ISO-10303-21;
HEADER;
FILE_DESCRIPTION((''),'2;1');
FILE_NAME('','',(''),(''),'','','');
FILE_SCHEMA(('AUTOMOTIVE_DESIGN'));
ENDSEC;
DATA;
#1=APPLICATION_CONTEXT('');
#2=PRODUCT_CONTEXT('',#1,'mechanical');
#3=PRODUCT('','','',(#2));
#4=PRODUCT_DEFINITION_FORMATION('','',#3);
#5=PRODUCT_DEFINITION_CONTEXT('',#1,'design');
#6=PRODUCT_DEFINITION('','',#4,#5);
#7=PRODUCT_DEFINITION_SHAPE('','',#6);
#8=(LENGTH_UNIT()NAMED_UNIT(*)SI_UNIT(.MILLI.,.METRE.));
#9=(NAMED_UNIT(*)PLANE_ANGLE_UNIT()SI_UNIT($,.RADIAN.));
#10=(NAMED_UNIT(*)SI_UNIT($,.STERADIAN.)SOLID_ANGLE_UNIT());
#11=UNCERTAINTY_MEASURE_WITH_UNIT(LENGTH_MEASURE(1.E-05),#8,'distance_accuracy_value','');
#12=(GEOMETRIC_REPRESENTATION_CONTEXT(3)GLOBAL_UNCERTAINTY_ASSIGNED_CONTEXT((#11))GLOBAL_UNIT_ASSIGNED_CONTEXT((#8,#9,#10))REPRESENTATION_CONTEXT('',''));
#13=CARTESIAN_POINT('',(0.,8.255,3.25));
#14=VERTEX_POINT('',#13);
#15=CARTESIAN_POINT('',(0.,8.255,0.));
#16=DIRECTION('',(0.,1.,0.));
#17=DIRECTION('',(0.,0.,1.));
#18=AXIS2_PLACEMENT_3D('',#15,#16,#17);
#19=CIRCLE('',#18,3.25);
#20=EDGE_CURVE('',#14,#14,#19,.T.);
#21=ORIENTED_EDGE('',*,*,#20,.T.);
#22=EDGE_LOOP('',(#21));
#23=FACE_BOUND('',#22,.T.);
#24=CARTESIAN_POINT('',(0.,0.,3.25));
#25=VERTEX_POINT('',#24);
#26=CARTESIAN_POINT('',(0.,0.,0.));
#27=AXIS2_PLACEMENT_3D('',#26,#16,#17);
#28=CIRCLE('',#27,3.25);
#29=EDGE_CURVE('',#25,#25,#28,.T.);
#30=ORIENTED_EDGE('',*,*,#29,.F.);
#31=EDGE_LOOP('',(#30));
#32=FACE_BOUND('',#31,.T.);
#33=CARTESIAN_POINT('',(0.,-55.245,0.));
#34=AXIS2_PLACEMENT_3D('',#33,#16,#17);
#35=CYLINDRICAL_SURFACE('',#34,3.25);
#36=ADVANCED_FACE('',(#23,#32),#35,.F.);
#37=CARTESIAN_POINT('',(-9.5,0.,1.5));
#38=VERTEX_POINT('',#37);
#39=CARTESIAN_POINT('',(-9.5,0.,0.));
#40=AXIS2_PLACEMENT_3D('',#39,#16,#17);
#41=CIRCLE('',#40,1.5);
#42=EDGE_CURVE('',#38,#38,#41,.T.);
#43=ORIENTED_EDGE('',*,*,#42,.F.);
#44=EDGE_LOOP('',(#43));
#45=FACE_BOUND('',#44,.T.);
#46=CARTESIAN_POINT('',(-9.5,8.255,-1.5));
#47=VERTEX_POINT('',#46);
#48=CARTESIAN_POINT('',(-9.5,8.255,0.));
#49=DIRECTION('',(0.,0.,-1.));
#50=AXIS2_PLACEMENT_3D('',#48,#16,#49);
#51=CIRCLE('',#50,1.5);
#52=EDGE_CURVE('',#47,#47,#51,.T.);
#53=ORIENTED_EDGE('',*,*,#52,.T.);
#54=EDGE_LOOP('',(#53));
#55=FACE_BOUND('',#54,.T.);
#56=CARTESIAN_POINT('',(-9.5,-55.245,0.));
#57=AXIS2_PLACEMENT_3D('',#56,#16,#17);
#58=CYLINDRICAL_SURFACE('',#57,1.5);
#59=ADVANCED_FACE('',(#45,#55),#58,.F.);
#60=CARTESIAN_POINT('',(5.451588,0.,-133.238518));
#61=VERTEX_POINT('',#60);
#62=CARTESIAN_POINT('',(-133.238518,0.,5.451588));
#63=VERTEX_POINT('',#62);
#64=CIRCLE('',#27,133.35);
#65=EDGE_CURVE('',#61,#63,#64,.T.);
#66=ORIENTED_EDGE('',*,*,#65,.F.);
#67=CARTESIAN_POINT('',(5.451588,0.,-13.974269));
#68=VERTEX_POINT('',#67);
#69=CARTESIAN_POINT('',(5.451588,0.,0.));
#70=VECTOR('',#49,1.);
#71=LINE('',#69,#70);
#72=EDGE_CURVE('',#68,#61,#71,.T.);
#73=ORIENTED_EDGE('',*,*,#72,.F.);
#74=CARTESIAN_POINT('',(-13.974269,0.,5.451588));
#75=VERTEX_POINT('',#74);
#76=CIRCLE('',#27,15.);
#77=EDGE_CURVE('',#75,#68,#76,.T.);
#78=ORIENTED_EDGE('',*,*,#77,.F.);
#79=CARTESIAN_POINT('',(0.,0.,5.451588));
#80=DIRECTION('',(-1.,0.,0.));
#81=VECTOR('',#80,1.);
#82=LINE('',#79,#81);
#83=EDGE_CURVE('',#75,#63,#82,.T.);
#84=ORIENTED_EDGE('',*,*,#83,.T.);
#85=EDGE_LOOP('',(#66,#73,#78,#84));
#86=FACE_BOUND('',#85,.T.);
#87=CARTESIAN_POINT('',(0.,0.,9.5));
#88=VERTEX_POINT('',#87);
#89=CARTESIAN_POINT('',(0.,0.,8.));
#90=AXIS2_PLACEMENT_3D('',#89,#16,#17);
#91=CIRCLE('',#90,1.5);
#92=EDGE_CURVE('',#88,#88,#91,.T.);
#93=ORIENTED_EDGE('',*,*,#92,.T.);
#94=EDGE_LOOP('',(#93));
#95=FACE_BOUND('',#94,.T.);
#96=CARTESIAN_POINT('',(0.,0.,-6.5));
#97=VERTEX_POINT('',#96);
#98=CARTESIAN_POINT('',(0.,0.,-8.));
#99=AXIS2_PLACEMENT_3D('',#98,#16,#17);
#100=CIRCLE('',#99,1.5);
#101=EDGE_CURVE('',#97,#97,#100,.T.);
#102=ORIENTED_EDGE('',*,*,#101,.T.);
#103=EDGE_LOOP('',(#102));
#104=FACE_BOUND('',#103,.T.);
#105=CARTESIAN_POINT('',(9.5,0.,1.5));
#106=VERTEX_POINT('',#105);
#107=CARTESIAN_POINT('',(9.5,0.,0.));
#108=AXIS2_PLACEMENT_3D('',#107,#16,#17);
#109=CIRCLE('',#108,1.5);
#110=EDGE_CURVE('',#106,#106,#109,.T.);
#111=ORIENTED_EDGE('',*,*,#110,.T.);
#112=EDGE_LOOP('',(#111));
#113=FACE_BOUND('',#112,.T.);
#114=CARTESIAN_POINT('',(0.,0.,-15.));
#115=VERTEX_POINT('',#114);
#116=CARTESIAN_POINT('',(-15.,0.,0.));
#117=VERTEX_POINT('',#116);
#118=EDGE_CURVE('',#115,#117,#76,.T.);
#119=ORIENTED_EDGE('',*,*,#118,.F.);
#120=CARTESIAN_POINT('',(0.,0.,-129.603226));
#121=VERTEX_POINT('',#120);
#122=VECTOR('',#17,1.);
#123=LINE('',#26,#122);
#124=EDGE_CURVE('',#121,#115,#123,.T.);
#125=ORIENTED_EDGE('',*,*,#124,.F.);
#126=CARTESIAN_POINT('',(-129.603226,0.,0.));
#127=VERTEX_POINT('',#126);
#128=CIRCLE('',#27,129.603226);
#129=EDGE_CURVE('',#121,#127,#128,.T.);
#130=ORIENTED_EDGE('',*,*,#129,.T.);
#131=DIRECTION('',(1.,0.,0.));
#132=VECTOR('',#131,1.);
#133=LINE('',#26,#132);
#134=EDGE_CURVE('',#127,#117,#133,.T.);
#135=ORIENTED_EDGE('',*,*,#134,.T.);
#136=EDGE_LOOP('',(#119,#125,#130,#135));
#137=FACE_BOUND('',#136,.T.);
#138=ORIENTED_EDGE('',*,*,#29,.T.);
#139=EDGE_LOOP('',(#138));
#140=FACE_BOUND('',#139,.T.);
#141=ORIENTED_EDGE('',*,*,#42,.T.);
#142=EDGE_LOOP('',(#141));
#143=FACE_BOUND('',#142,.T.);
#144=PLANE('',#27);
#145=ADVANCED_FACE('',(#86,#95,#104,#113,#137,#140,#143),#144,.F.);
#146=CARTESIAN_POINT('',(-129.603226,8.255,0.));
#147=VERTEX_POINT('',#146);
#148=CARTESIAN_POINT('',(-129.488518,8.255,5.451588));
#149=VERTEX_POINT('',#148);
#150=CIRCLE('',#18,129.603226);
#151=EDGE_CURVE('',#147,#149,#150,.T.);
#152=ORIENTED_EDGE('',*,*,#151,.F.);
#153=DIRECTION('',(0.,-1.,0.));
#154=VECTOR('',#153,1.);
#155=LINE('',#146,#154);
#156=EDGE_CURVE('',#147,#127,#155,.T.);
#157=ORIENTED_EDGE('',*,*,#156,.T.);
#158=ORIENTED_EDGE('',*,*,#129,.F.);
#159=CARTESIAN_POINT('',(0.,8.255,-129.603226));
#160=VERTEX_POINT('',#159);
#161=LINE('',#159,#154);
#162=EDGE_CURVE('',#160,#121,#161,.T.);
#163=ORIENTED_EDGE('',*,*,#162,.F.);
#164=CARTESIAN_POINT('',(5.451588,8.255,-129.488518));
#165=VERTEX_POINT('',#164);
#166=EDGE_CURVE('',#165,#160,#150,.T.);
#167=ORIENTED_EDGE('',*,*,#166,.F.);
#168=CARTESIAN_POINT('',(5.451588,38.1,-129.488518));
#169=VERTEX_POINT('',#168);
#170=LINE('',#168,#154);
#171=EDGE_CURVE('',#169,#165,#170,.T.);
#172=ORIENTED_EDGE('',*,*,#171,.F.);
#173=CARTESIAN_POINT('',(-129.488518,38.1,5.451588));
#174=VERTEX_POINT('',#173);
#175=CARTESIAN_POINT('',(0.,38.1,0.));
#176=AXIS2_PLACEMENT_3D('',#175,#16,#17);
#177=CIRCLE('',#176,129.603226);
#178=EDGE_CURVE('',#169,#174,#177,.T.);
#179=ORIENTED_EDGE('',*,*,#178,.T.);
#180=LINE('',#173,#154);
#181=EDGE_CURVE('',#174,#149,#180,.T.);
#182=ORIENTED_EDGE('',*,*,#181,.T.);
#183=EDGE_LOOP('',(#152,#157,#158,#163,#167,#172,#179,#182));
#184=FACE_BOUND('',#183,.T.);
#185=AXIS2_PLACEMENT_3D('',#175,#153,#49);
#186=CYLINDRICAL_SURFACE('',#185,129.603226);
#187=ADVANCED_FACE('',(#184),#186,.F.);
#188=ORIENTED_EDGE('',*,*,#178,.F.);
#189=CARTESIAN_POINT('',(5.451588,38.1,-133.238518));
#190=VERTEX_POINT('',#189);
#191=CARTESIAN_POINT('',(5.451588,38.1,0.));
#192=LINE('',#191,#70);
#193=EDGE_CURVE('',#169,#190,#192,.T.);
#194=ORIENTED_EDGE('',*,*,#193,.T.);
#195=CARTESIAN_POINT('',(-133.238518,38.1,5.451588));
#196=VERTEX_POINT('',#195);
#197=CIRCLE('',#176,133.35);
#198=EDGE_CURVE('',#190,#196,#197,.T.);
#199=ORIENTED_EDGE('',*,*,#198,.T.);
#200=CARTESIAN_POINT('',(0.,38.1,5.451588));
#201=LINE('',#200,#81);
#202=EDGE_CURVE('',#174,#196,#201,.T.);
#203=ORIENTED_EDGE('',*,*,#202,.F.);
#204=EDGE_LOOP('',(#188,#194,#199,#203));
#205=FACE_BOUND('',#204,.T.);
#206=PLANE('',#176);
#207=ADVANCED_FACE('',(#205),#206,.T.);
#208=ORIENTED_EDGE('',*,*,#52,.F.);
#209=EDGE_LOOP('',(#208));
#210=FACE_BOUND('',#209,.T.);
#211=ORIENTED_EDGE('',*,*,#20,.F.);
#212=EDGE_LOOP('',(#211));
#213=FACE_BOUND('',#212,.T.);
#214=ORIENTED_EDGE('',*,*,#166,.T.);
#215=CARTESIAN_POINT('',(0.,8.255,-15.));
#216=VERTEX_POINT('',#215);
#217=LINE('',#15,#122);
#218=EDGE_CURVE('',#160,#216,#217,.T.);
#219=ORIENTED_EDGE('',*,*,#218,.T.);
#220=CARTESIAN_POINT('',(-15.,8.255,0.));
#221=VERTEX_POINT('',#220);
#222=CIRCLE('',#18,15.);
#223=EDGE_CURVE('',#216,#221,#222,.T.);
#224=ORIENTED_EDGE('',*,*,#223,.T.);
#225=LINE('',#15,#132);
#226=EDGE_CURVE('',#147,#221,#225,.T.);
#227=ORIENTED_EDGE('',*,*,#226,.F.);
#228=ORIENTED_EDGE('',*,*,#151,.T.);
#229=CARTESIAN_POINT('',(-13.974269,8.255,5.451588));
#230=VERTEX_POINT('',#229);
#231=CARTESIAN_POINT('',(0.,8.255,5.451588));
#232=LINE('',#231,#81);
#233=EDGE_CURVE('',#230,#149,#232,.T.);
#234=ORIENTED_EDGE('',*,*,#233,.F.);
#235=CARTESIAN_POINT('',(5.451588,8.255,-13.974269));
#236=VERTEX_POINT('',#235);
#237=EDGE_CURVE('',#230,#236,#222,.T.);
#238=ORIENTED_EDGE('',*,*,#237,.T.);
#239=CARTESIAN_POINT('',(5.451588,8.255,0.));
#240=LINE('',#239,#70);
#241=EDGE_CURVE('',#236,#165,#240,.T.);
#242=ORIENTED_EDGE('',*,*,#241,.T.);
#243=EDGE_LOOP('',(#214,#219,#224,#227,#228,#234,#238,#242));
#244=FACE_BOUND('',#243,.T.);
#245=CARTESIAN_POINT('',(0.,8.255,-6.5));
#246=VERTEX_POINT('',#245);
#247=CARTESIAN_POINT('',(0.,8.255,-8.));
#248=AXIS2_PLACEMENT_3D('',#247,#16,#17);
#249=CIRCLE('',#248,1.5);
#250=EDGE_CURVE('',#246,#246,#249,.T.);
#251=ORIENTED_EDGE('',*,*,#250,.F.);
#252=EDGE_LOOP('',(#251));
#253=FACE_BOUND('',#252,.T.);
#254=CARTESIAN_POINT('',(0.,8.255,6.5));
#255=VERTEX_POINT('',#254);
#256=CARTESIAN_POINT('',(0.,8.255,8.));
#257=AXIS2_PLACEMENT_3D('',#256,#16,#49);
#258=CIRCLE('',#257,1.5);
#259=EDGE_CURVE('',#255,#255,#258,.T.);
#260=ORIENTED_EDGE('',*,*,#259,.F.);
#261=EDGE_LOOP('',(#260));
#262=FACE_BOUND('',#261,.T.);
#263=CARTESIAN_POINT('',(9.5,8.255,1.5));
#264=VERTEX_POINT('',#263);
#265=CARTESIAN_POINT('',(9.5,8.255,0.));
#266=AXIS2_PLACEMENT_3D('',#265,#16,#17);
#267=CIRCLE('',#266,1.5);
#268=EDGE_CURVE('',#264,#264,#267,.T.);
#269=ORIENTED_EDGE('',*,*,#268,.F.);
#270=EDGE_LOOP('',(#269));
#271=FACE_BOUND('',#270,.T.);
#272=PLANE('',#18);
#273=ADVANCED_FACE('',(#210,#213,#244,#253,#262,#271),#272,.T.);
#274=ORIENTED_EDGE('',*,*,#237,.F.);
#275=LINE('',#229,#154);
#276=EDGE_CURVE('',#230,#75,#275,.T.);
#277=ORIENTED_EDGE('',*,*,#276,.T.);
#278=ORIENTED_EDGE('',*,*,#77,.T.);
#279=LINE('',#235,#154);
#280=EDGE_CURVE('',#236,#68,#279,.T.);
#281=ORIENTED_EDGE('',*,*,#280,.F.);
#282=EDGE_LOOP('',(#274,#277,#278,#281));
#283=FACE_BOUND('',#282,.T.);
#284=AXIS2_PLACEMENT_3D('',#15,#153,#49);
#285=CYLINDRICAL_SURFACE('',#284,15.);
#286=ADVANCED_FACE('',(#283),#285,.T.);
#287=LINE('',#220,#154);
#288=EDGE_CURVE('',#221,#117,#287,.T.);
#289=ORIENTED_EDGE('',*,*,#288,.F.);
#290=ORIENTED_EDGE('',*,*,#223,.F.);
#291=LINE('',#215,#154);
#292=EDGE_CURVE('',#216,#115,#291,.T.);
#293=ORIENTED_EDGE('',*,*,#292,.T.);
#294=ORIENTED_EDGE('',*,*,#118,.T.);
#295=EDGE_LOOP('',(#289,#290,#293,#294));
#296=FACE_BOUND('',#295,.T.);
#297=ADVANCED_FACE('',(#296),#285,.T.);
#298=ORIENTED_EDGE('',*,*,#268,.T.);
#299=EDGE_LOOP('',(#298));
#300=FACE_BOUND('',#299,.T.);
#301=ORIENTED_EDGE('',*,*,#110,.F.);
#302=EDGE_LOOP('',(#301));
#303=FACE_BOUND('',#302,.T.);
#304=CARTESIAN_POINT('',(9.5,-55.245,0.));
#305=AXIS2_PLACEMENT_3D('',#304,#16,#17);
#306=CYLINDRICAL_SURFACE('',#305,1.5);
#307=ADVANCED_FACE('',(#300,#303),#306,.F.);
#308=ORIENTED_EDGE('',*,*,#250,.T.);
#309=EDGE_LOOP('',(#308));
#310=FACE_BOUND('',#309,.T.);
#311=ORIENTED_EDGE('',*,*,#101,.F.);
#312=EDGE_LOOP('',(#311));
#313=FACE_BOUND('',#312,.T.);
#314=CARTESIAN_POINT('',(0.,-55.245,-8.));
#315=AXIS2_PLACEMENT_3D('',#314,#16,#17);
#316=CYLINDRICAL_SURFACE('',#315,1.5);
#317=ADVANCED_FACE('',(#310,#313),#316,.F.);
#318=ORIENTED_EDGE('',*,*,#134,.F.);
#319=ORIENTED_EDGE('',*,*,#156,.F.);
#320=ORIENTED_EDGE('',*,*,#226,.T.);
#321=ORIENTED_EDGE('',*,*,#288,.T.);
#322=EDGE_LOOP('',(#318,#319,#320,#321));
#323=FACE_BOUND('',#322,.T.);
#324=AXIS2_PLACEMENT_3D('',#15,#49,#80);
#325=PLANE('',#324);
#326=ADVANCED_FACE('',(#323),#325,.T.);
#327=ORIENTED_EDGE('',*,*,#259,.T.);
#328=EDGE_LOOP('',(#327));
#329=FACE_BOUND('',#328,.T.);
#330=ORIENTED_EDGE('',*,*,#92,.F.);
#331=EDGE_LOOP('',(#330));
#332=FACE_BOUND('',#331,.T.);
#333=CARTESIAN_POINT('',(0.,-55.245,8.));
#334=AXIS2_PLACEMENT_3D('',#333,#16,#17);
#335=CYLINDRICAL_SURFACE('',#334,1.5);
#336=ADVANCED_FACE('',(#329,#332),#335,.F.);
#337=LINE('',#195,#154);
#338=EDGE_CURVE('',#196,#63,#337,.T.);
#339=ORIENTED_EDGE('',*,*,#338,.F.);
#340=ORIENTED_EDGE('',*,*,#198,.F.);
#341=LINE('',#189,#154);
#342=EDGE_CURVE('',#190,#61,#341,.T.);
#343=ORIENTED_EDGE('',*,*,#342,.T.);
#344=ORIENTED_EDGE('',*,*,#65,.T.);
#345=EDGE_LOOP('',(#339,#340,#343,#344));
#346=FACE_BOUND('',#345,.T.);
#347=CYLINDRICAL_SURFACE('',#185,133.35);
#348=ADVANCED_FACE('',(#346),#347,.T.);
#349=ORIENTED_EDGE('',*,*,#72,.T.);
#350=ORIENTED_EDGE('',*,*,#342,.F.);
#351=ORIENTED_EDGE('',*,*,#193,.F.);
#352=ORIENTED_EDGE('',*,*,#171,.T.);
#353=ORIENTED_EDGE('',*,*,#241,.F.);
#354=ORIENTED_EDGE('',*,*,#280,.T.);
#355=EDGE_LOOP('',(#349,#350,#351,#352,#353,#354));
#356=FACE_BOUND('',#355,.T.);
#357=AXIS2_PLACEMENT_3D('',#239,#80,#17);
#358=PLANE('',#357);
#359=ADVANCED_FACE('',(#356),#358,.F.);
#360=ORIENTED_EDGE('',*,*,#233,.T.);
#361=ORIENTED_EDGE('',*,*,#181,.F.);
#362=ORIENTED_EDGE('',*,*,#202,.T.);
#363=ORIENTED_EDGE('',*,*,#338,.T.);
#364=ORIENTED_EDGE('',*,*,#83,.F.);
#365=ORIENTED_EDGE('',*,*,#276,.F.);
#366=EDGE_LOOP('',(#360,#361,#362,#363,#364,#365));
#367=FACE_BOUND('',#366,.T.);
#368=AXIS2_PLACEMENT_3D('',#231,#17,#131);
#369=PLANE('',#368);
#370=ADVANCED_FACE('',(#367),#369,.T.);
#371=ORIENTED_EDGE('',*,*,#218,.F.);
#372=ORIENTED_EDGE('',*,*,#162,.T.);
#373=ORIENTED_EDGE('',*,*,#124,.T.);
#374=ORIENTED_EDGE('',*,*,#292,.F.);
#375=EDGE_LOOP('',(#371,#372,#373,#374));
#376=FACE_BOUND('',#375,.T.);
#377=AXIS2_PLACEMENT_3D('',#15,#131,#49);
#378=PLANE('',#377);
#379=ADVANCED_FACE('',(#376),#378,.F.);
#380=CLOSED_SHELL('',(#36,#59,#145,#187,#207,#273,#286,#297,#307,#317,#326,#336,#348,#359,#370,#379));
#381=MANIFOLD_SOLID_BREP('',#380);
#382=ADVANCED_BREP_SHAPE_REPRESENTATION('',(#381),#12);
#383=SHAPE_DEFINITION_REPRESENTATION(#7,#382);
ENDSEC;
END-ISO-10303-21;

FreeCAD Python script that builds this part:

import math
import FreeCAD as App
import Part
import Sketcher
Q = App.Units.Quantity

doc = App.newDocument("Part")
body = doc.addObject("PartDesign::Body", "Body")

sketch1 = body.newObject("Sketcher::SketchObject", "Sketch")
sketch1.AttachmentSupport = (doc.getObject("XZ_Plane"), [""])
sketch1.MapMode = "FlatFace"
sketch1.addGeometry(Part.Circle(App.Vector(0, 0, 0), App.Vector(0, 0, 1), 15), False)
sketch1.addConstraint(Sketcher.Constraint("Coincident", 0, 3, -1, 1))
sketch1.addConstraint(Sketcher.Constraint("Diameter", 0, Q("30 mm")))
pad1 = body.newObject("PartDesign::Pad", "Pad")
pad1.Profile = sketch1
pad1.Length = Q("0.325 in")
pad1.Reversed = True

sketch2 = body.newObject("Sketcher::SketchObject", "Sketch001")
sketch2.AttachmentSupport = (doc.getObject("XZ_Plane"), [""])
sketch2.MapMode = "FlatFace"
sketch2.addGeometry(Part.LineSegment(App.Vector(-15, 0, 0), App.Vector(-130, 0, 0)), False)
sketch2.addGeometry(Part.ArcOfCircle(Part.Circle(App.Vector(0, 0, 0), App.Vector(0, 0, 1), 130), math.radians(177.59), math.radians(180)), False)
sketch2.addGeometry(Part.LineSegment(App.Vector(-129, 5, 0), App.Vector(-14, 5, 0)), False)
sketch2.addGeometry(Part.ArcOfCircle(Part.Circle(App.Vector(0, 0, 0), App.Vector(0, 0, 1), 15), math.radians(159), math.radians(180)), False)
sketch2.addGeometry(Part.ArcOfCircle(Part.Circle(App.Vector(0, 0, 0), App.Vector(0, 0, 1), 130), math.radians(-90), math.radians(-87.59)), False)
sketch2.addGeometry(Part.LineSegment(App.Vector(0, -130, 0), App.Vector(0, -15, 0)), False)
sketch2.addGeometry(Part.ArcOfCircle(Part.Circle(App.Vector(0, 0, 0), App.Vector(0, 0, 1), 15), math.radians(-90), math.radians(-69)), False)
sketch2.addGeometry(Part.LineSegment(App.Vector(5, -14, 0), App.Vector(5, -129, 0)), False)
sketch2.addConstraint(Sketcher.Constraint("Coincident", 0, 2, 1, 2))
sketch2.addConstraint(Sketcher.Constraint("Coincident", 1, 1, 2, 1))
sketch2.addConstraint(Sketcher.Constraint("Coincident", 2, 2, 3, 1))
sketch2.addConstraint(Sketcher.Constraint("Coincident", 3, 2, 0, 1))
sketch2.addConstraint(Sketcher.Constraint("Coincident", 4, 1, 5, 1))
sketch2.addConstraint(Sketcher.Constraint("Coincident", 5, 2, 6, 1))
sketch2.addConstraint(Sketcher.Constraint("Coincident", 6, 2, 7, 1))
sketch2.addConstraint(Sketcher.Constraint("Coincident", 7, 2, 4, 2))
sketch2.addConstraint(Sketcher.Constraint("Horizontal", 0))
sketch2.addConstraint(Sketcher.Constraint("Horizontal", 2))
sketch2.addConstraint(Sketcher.Constraint("Vertical", 5))
sketch2.addConstraint(Sketcher.Constraint("Vertical", 7))
sketch2.addConstraint(Sketcher.Constraint("Coincident", 1, 3, -1, 1))
sketch2.addConstraint(Sketcher.Constraint("Coincident", 3, 3, -1, 1))
sketch2.addConstraint(Sketcher.Constraint("Coincident", 4, 3, -1, 1))
sketch2.addConstraint(Sketcher.Constraint("Coincident", 6, 3, -1, 1))
sketch2.addConstraint(Sketcher.Constraint("Equal", 1, 4))
sketch2.addConstraint(Sketcher.Constraint("Equal", 3, 6))
sketch2.addConstraint(Sketcher.Constraint("PointOnObject", 0, 2, -1))
sketch2.addConstraint(Sketcher.Constraint("PointOnObject", 4, 1, -2))
sketch2.addConstraint(Sketcher.Constraint("Equal", 2, 7))
sketch2.addConstraint(Sketcher.Constraint("Radius", 3, Q("15 mm")))
sketch2.addConstraint(Sketcher.Constraint("Radius", 1, Q("129.603226 mm")))
sketch2.addConstraint(Sketcher.Constraint("DistanceX", 2, 1, 2, 2, Q("115.514249 mm")))
pad2 = body.newObject("PartDesign::Pad", "Pad001")
pad2.Profile = sketch2
pad2.Length = Q("0.325 in")
pad2.Reversed = True

sketch3 = body.newObject("Sketcher::SketchObject", "Sketch002")
sketch3.AttachmentSupport = (doc.getObject("XZ_Plane"), [""])
sketch3.MapMode = "FlatFace"
sketch3.addGeometry(Part.LineSegment(App.Vector(5.5, -129.5, 0), App.Vector(5.5, -133.2, 0)), False)
sketch3.addGeometry(Part.ArcOfCircle(Part.Circle(App.Vector(0, 0, 0), App.Vector(0, 0, 1), 133.3), math.radians(178), math.radians(272)), False)
sketch3.addGeometry(Part.LineSegment(App.Vector(-133.2, 5.5, 0), App.Vector(-129.5, 5.5, 0)), False)
sketch3.addGeometry(Part.ArcOfCircle(Part.Circle(App.Vector(0, 0, 0), App.Vector(0, 0, 1), 129.6), math.radians(178), math.radians(272)), False)
sketch3.addConstraint(Sketcher.Constraint("Coincident", 0, 2, 1, 2))
sketch3.addConstraint(Sketcher.Constraint("Coincident", 1, 1, 2, 1))
sketch3.addConstraint(Sketcher.Constraint("Coincident", 2, 2, 3, 1))
sketch3.addConstraint(Sketcher.Constraint("Coincident", 3, 2, 0, 1))
sketch3.addConstraint(Sketcher.Constraint("Vertical", 0))
sketch3.addConstraint(Sketcher.Constraint("Horizontal", 2))
sketch3.addConstraint(Sketcher.Constraint("Coincident", 1, 3, -1, 1))
sketch3.addConstraint(Sketcher.Constraint("Coincident", 3, 3, -1, 1))
sketch3.addConstraint(Sketcher.Constraint("Radius", 1, Q("5.25 in")))
sketch3.addConstraint(Sketcher.Constraint("DistanceX", 2, 1, 2, 2, Q("3.75 mm")))
sketch3.addConstraint(Sketcher.Constraint("DistanceY", 0, 2, -1, 1, Q("133.238518 mm")))
sketch3.addConstraint(Sketcher.Constraint("DistanceX", 1, 1, -1, 1, Q("133.238518 mm")))
pad3 = body.newObject("PartDesign::Pad", "Pad002")
pad3.Profile = sketch3
pad3.Length = Q("1.5 in")
pad3.Reversed = True

sketch4 = body.newObject("Sketcher::SketchObject", "Sketch003")
sketch4.AttachmentSupport = (doc.getObject("XZ_Plane"), [""])
sketch4.MapMode = "FlatFace"
sketch4.AttachmentOffset = App.Placement(App.Vector(0, 0, -0.325 * 25.4), App.Rotation())
sketch4.addGeometry(Part.Circle(App.Vector(-9.5, 0, 0), App.Vector(0, 0, 1), 1.5), False)
sketch4.addGeometry(Part.Circle(App.Vector(0, -8, 0), App.Vector(0, 0, 1), 1.5), False)
sketch4.addGeometry(Part.Circle(App.Vector(0, 8, 0), App.Vector(0, 0, 1), 1.5), False)
sketch4.addGeometry(Part.Circle(App.Vector(9.5, 0, 0), App.Vector(0, 0, 1), 1.5), False)
sketch4.addGeometry(Part.Circle(App.Vector(0, 0, 0), App.Vector(0, 0, 1), 3.2), False)
sketch4.addConstraint(Sketcher.Constraint("Coincident", 4, 3, -1, 1))
sketch4.addConstraint(Sketcher.Constraint("Equal", 0, 1))
sketch4.addConstraint(Sketcher.Constraint("Equal", 1, 2))
sketch4.addConstraint(Sketcher.Constraint("Equal", 2, 3))
sketch4.addConstraint(Sketcher.Constraint("Symmetric", 1, 3, 2, 3, -1, 1))
sketch4.addConstraint(Sketcher.Constraint("Symmetric", 0, 3, 3, 3, -1, 1))
sketch4.addConstraint(Sketcher.Constraint("PointOnObject", 0, 3, -1))
sketch4.addConstraint(Sketcher.Constraint("PointOnObject", 1, 3, -2))
sketch4.addConstraint(Sketcher.Constraint("Diameter", 0, Q("3 mm")))
sketch4.addConstraint(Sketcher.Constraint("Diameter", 4, Q("6.5 mm")))
sketch4.addConstraint(Sketcher.Constraint("DistanceX", 0, 3, -1, 1, Q("9.5 mm")))
sketch4.addConstraint(Sketcher.Constraint("DistanceY", 1, 3, -1, 1, Q("8 mm")))
pocket1 = body.newObject("PartDesign::Pocket", "Pocket")
pocket1.Profile = sketch4
pocket1.Length = Q("2.5 in")
pocket1.Reversed = True

doc.recompute()
